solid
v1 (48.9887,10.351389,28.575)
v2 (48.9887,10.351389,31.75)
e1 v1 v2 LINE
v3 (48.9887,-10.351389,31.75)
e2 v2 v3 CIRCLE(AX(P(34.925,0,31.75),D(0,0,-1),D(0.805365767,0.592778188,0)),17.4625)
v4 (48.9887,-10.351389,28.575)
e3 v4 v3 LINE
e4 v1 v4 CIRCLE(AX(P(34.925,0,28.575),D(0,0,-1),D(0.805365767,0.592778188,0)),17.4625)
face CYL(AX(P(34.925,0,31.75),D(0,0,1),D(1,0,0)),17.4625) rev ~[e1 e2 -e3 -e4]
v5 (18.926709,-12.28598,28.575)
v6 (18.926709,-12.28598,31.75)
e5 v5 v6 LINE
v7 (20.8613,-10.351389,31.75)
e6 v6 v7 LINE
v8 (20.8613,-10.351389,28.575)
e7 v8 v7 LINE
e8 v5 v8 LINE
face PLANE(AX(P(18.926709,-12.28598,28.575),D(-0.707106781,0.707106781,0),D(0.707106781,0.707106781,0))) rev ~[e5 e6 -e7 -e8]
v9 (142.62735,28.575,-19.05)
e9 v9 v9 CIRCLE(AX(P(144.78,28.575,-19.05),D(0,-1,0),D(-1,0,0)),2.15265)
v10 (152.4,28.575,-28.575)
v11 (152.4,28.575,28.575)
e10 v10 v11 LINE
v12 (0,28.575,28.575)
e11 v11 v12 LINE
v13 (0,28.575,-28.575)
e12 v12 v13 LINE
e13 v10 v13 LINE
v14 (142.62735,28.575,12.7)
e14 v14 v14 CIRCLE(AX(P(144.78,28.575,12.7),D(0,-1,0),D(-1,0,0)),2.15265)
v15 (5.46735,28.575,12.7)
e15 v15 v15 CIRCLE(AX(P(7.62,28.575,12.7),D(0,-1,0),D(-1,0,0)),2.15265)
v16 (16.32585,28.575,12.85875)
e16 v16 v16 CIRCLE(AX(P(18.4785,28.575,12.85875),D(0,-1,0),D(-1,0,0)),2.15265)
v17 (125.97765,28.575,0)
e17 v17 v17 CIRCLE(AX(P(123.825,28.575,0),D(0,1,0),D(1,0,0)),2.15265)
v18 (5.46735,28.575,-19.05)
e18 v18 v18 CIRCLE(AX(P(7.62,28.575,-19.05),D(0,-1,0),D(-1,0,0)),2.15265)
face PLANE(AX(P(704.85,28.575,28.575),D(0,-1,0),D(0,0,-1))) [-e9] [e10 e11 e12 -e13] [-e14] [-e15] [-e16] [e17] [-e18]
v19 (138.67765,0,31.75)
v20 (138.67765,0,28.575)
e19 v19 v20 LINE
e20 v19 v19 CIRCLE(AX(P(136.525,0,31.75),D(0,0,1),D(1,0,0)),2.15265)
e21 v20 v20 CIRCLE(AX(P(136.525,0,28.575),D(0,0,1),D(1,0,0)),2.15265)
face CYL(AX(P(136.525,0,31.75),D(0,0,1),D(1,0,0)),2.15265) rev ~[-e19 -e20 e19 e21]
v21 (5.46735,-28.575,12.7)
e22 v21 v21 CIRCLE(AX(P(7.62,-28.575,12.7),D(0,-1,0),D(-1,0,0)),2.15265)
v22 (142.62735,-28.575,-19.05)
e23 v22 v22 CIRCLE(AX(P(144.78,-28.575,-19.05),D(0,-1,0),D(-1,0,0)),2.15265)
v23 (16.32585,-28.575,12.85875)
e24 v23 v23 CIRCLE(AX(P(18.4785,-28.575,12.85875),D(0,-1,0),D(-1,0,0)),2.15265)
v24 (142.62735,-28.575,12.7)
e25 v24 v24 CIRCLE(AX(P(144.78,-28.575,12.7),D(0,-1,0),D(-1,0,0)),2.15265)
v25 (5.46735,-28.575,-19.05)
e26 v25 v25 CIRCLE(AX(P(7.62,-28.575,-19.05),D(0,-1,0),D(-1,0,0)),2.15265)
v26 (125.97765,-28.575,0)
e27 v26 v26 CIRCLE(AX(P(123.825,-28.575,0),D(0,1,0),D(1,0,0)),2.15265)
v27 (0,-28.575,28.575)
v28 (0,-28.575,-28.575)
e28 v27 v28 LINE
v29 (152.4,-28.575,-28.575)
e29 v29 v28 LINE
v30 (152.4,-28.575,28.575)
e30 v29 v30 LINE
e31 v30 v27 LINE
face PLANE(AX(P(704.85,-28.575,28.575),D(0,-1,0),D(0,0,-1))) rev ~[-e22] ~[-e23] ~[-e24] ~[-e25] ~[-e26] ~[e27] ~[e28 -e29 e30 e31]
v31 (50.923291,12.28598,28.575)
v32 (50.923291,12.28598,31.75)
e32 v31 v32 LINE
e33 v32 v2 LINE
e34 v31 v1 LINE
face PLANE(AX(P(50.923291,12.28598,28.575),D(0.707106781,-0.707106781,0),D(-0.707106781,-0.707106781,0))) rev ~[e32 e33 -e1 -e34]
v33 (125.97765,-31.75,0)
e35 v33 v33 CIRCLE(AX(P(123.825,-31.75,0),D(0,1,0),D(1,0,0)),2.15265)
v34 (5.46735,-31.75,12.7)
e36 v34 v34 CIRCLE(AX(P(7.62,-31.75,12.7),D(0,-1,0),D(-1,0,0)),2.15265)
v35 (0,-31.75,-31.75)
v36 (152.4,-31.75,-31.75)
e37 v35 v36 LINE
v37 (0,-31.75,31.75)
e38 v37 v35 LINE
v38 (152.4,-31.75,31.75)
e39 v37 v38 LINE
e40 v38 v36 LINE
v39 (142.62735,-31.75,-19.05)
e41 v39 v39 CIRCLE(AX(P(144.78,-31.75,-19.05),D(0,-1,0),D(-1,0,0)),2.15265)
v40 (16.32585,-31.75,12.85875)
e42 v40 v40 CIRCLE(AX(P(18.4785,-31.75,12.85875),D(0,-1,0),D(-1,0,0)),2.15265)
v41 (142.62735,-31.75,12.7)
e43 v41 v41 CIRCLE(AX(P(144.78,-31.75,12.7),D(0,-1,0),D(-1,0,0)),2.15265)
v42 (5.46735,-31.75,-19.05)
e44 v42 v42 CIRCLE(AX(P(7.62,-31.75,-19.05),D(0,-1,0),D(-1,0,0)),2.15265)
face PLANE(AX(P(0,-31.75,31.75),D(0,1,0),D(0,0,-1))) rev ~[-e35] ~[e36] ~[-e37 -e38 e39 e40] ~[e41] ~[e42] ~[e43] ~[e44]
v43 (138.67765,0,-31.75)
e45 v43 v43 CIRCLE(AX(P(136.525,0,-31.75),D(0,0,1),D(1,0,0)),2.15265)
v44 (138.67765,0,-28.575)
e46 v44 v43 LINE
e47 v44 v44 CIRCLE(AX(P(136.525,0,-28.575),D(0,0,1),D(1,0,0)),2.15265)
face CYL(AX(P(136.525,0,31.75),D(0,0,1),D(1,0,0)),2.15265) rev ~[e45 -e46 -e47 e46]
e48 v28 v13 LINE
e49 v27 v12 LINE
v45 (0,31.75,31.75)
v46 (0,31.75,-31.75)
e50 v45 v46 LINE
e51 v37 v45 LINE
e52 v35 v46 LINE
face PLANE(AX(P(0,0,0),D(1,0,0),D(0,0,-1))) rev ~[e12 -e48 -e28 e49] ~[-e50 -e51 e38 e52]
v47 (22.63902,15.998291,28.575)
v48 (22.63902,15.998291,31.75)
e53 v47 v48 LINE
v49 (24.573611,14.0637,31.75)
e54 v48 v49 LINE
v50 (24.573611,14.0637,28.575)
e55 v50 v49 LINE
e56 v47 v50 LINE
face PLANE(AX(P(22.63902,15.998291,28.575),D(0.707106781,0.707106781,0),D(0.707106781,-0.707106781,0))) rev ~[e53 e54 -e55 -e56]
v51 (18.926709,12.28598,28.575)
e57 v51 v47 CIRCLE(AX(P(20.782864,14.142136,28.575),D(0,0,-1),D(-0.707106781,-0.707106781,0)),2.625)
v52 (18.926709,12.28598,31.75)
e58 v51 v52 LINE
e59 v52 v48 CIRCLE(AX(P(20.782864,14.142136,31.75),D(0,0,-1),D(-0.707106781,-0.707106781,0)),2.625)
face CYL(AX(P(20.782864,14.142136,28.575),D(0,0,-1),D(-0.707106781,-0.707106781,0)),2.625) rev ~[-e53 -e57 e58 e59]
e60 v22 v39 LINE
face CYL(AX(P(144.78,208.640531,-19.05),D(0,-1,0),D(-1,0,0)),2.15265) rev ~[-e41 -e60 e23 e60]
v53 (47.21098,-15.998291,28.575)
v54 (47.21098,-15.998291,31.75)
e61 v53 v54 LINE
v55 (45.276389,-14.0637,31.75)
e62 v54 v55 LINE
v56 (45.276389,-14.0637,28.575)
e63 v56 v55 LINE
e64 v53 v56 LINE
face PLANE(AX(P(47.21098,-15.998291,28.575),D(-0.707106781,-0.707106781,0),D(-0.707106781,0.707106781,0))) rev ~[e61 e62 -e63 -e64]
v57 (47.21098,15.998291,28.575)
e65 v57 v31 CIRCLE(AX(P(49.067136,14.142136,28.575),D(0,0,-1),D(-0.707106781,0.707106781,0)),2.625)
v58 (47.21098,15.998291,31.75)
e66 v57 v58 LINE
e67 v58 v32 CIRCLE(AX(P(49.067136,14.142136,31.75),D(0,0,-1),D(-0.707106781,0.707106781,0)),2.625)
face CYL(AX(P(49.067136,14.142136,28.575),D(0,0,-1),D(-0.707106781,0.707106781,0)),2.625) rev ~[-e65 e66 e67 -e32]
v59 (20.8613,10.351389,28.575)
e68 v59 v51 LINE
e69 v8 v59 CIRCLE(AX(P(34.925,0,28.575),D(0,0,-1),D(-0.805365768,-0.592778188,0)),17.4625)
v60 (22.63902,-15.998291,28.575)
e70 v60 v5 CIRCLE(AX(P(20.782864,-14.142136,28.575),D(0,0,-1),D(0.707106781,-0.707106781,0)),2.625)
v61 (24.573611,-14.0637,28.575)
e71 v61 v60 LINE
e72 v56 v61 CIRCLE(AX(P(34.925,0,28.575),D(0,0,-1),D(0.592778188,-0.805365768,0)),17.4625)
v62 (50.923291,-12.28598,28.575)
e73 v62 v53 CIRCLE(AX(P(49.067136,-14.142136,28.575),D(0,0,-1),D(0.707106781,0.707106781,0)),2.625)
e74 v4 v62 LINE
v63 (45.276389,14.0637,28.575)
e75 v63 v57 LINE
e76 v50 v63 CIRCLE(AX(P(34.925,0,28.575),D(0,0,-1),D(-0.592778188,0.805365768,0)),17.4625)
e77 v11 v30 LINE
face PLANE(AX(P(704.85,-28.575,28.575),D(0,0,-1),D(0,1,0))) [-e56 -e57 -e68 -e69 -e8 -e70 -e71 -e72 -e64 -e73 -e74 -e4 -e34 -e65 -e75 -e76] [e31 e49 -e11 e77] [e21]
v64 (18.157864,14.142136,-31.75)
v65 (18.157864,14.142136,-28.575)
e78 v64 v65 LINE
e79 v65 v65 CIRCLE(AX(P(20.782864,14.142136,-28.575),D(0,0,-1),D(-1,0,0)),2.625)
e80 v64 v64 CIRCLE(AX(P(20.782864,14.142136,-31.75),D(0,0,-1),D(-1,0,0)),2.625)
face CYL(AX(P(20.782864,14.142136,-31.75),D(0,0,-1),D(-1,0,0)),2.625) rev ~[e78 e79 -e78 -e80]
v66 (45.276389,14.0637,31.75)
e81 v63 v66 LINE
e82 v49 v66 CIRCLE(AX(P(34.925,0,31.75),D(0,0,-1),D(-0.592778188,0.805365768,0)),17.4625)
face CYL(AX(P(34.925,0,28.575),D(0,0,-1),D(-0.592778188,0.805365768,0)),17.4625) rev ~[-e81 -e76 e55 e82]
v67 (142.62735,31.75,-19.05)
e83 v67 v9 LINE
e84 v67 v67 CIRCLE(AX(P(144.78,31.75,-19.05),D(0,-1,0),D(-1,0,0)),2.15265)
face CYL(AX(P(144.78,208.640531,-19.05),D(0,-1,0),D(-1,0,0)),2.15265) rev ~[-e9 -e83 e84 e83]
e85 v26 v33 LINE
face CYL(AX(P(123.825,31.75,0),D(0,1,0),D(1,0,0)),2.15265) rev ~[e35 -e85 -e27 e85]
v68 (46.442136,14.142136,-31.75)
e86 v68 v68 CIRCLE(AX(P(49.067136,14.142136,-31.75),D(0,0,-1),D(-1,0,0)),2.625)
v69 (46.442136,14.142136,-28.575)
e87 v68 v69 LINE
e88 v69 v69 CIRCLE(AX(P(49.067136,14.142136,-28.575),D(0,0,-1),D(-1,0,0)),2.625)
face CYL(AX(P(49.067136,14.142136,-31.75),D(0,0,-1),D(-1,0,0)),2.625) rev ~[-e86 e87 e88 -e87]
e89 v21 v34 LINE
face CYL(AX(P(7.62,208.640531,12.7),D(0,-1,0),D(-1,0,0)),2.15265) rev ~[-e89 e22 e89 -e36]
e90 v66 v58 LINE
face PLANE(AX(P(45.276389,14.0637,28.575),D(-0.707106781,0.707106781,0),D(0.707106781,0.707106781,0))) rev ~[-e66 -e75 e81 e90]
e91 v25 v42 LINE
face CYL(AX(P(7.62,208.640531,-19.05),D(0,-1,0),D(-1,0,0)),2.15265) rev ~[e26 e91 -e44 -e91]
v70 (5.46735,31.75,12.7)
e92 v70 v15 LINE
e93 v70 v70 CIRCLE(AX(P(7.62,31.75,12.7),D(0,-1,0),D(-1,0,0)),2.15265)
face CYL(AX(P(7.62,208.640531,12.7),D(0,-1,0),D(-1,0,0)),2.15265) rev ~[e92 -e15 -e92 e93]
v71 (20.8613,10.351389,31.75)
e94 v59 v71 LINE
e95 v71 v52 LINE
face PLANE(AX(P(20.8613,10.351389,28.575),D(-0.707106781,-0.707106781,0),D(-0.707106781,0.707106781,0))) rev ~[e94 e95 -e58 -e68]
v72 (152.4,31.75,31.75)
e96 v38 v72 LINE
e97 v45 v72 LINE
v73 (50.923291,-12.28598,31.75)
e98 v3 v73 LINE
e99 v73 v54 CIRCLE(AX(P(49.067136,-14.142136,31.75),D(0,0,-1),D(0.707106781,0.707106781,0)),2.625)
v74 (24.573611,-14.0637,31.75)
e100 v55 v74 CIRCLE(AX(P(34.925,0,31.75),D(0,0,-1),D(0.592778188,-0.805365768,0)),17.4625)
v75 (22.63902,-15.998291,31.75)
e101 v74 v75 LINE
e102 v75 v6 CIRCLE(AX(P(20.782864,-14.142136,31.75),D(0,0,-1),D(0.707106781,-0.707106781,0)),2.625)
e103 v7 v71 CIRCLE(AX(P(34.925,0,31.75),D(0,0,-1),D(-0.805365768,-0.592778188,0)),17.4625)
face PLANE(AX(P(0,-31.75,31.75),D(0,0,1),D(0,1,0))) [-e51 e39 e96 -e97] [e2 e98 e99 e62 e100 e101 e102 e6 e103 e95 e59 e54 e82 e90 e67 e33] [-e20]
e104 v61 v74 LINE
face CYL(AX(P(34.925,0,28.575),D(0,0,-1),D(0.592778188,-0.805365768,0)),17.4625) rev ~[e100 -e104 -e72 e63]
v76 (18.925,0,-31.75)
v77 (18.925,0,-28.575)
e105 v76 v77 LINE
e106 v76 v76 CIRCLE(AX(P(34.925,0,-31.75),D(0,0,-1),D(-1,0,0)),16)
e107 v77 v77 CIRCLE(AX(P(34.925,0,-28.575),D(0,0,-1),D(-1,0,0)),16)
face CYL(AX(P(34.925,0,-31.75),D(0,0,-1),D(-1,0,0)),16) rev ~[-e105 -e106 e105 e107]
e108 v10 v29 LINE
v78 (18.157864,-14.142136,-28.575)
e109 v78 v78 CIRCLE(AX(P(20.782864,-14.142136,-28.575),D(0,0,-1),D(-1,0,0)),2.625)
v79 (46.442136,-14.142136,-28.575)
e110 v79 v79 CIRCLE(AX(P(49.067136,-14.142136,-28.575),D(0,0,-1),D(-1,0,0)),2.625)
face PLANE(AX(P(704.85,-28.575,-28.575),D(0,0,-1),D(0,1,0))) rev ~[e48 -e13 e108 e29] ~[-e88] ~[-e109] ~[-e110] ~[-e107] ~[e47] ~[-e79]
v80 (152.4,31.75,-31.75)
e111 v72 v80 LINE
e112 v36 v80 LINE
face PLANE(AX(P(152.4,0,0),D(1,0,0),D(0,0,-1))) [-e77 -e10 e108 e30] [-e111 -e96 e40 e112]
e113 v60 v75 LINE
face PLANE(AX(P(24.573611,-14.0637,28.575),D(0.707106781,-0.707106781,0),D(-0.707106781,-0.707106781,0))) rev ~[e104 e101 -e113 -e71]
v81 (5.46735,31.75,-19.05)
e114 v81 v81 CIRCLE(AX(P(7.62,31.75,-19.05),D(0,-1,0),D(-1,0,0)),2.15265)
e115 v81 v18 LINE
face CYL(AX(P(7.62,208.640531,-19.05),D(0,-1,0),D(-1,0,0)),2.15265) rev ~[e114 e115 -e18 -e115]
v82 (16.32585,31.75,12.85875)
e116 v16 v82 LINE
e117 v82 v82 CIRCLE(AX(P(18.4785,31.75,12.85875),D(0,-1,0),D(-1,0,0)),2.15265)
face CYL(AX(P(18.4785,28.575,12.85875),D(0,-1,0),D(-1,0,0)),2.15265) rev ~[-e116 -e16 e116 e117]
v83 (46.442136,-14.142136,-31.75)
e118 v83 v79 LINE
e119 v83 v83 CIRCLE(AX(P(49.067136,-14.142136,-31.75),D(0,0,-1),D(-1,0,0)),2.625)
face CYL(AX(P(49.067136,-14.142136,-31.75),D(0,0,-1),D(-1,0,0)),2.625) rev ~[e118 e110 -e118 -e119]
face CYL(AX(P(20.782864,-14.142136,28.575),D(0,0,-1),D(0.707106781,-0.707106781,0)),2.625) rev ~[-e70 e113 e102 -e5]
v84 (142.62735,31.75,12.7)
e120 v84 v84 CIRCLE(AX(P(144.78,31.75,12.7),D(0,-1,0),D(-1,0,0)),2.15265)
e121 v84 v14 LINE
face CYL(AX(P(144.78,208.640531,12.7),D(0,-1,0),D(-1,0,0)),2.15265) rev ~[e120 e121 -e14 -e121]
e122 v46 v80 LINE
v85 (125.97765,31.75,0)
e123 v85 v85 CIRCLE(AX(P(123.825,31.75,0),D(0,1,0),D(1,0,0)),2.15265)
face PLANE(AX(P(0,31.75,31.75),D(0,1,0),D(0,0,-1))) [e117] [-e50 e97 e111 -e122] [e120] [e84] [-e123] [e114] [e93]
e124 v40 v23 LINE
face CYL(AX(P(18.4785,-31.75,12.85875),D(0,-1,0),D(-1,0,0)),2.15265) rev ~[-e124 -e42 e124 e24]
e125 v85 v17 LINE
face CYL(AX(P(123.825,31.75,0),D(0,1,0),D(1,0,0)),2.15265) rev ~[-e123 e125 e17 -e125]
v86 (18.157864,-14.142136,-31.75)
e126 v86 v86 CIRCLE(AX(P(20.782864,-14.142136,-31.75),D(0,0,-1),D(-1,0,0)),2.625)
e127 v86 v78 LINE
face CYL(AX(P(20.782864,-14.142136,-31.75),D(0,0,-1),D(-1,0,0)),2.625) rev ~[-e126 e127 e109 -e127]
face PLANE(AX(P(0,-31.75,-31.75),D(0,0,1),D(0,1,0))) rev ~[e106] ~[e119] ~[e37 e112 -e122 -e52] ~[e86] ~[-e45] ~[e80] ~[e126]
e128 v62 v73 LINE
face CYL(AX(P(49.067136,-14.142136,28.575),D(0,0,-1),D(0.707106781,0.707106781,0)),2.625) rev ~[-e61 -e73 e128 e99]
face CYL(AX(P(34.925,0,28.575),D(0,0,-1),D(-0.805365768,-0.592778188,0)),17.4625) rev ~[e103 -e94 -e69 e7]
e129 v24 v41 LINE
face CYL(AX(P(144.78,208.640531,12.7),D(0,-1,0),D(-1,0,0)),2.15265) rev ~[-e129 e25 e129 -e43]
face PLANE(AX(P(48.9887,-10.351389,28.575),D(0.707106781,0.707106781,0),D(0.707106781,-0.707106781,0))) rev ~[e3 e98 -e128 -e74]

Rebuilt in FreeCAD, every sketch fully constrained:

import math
import FreeCAD as App
import Part
import Sketcher

V = App.Vector
Q = App.Units.Quantity


def add_polygon(sketch, points):
    """Adds a closed chain of lines whose ends are joined by coincident constraints."""
    first, n = sketch.GeometryCount, len(points)
    for a, b in zip(points, points[1:] + points[:1]):
        sketch.addGeometry(Part.LineSegment(App.Vector(*a, 0), App.Vector(*b, 0)), False)
    for i in range(n):
        sketch.addConstraint(Sketcher.Constraint("Coincident", first + i, 2, first + (i + 1) % n, 1))

doc = App.newDocument("Part")
body = doc.addObject("PartDesign::Body", "Body")

# Sketch on YZ plane
sketch1 = body.newObject("Sketcher::SketchObject", "Sketch")
sketch1.AttachmentSupport = (doc.getObject("YZ_Plane"), [""])
sketch1.MapMode = "FlatFace"
add_polygon(sketch1, [(32, 32), (-32, 32), (-32, -32), (32, -32)])  # lines 0-3
sketch1.addConstraint([
    Sketcher.Constraint("Horizontal", 0),
    Sketcher.Constraint("Vertical", 1),
    Sketcher.Constraint("Horizontal", 2),
    Sketcher.Constraint("Vertical", 3),
    Sketcher.Constraint("Symmetric", 0, 2, 2, 2, -1, 1),
    Sketcher.Constraint("Equal", 2, 1),
    Sketcher.Constraint("DistanceX", 0, 2, 0, 1, Q("2.5 in")),
])
pad1 = body.newObject("PartDesign::Pad", "Pad")
pad1.Profile = sketch1
pad1.Length = Q("27.75 in")

# Sketch on YZ plane
sketch2 = body.newObject("Sketcher::SketchObject", "Sketch001")
sketch2.AttachmentSupport = (doc.getObject("YZ_Plane"), [""])
sketch2.MapMode = "FlatFace"
sketch2.AttachmentOffset = App.Placement(V(0, 0, 27.75 * 25.4), App.Rotation())
add_polygon(sketch2, [(29, 29), (-29, 29), (-29, -29), (29, -29)])  # lines 0-3
sketch2.addConstraint([
    Sketcher.Constraint("Horizontal", 0),
    Sketcher.Constraint("Vertical", 1),
    Sketcher.Constraint("Horizontal", 2),
    Sketcher.Constraint("Vertical", 3),
    Sketcher.Constraint("Symmetric", 0, 2, 2, 2, -1, 1),
    Sketcher.Constraint("Equal", 2, 1),
    Sketcher.Constraint("DistanceX", 0, 2, 0, 1, Q("2.25 in")),
])
pocket1 = body.newObject("PartDesign::Pocket", "Pocket")
pocket1.Profile = sketch2
pocket1.Type = "ThroughAll"

# Sketch on XY plane
sketch3 = body.newObject("Sketcher::SketchObject", "Sketch002")
sketch3.AttachmentSupport = (doc.getObject("XY_Plane"), [""])
sketch3.MapMode = "FlatFace"
sketch3.AttachmentOffset = App.Placement(V(0, 0, 1.25 * 25.4), App.Rotation())
sketch3.addGeometry(Part.Circle(V(352, 0, 0), V(0, 0, 1), 17), False)
sketch3.addConstraint([
    Sketcher.Constraint("PointOnObject", 0, 3, -1),
    Sketcher.Constraint("Diameter", 0, Q("1.375 in")),
    Sketcher.Constraint("DistanceX", -1, 1, 0, 3, Q("13.875 in")),
])
pocket2 = body.newObject("PartDesign::Pocket", "Pocket001")
pocket2.Profile = sketch3
pocket2.Type = "UpToFirst"

# Sketch on XY plane
sketch4 = body.newObject("Sketcher::SketchObject", "Sketch003")
sketch4.AttachmentSupport = (doc.getObject("XY_Plane"), [""])
sketch4.MapMode = "FlatFace"
sketch4.AttachmentOffset = App.Placement(V(0, 0, 1.25 * 25.4), App.Rotation())
sketch4.addGeometry(Part.Circle(V(35, 0, 0), V(0, 0, 1), 17), False)
sketch4.addConstraint([
    Sketcher.Constraint("PointOnObject", 0, 3, -1),
    Sketcher.Constraint("Diameter", 0, Q("1.375 in")),
    Sketcher.Constraint("DistanceX", -1, 1, 0, 3, Q("1.375 in")),
])
pocket3 = body.newObject("PartDesign::Pocket", "Pocket002")
pocket3.Profile = sketch4
pocket3.Type = "UpToFirst"

# Sketch on XY plane
sketch5 = body.newObject("Sketcher::SketchObject", "Sketch004")
sketch5.AttachmentSupport = (doc.getObject("XY_Plane"), [""])
sketch5.MapMode = "FlatFace"
sketch5.AttachmentOffset = App.Placement(V(0, 0, 1.25 * 25.4), App.Rotation())
sketch5.addGeometry(Part.Circle(V(670, 0, 0), V(0, 0, 1), 17), False)
sketch5.addConstraint([
    Sketcher.Constraint("PointOnObject", 0, 3, -1),
    Sketcher.Constraint("Diameter", 0, Q("1.375 in")),
    Sketcher.Constraint("DistanceX", -1, 1, 0, 3, Q("26.375 in")),
])
pocket4 = body.newObject("PartDesign::Pocket", "Pocket003")
pocket4.Profile = sketch5
pocket4.Type = "UpToFirst"

# Sketch on XZ plane
sketch6 = body.newObject("Sketcher::SketchObject", "Sketch005")
sketch6.AttachmentSupport = (doc.getObject("XZ_Plane"), [""])
sketch6.MapMode = "FlatFace"
sketch6.AttachmentOffset = App.Placement(V(0, 0, -1.25 * 25.4), App.Rotation())
sketch6.addGeometry([
    Part.Circle(V(466.7, 0, 0), V(0, 0, 1), 2.2),
    Part.Circle(V(123.8, 0, 0), V(0, 0, 1), 2.2),
    Part.Circle(V(581, 0, 0), V(0, 0, 1), 2.2),
    Part.Circle(V(238.1, 0, 0), V(0, 0, 1), 2.2),
], False)
sketch6.addConstraint([
    Sketcher.Constraint("Equal", 0, 1),
    Sketcher.Constraint("Equal", 1, 2),
    Sketcher.Constraint("Equal", 2, 3),
    Sketcher.Constraint("PointOnObject", 0, 3, -1),
    Sketcher.Constraint("PointOnObject", 1, 3, -1),
    Sketcher.Constraint("PointOnObject", 2, 3, -1),
    Sketcher.Constraint("PointOnObject", 3, 3, -1),
    Sketcher.Constraint("DistanceX", 1, 3, 2, 3, Q("18 in")),
    Sketcher.Constraint("DistanceX", 3, 3, 0, 3, Q("9 in")),
    Sketcher.Constraint("Diameter", 0, Q("0.1695 in")),
    Sketcher.Constraint("DistanceX", 1, 3, 0, 3, Q("13.5 in")),
    Sketcher.Constraint("DistanceX", -1, 1, 0, 3, Q("18.375 in")),
])
pocket5 = body.newObject("PartDesign::Pocket", "Pocket004")
pocket5.Profile = sketch6
pocket5.Type = "ThroughAll"
pocket5.Reversed = True

# Sketch on XY plane
sketch7 = body.newObject("Sketcher::SketchObject", "Sketch006")
sketch7.AttachmentSupport = (doc.getObject("XY_Plane"), [""])
sketch7.MapMode = "FlatFace"
sketch7.AttachmentOffset = App.Placement(V(0, 0, 1.25 * 25.4), App.Rotation())
sketch7.addGeometry([
    Part.Circle(V(225.4, 0, 0), V(0, 0, 1), 2.2),
    Part.Circle(V(568.3, 0, 0), V(0, 0, 1), 2.2),
    Part.Circle(V(136.5, 0, 0), V(0, 0, 1), 2.2),
    Part.Circle(V(479.4, 0, 0), V(0, 0, 1), 2.2),
], False)
sketch7.addConstraint([
    Sketcher.Constraint("Equal", 0, 1),
    Sketcher.Constraint("Equal", 1, 2),
    Sketcher.Constraint("Equal", 2, 3),
    Sketcher.Constraint("PointOnObject", 0, 3, -1),
    Sketcher.Constraint("PointOnObject", 1, 3, -1),
    Sketcher.Constraint("PointOnObject", 2, 3, -1),
    Sketcher.Constraint("PointOnObject", 3, 3, -1),
    Sketcher.Constraint("DistanceX", 2, 3, 1, 3, Q("17 in")),
    Sketcher.Constraint("DistanceX", 0, 3, 3, 3, Q("10 in")),
    Sketcher.Constraint("Diameter", 0, Q("0.1695 in")),
    Sketcher.Constraint("DistanceX", 0, 3, 1, 3, Q("13.5 in")),
    Sketcher.Constraint("DistanceX", -1, 1, 0, 3, Q("8.875 in")),
])
pocket6 = body.newObject("PartDesign::Pocket", "Pocket005")
pocket6.Profile = sketch7
pocket6.Type = "ThroughAll"

# Sketch on XY plane
sketch8 = body.newObject("Sketcher::SketchObject", "Sketch007")
sketch8.AttachmentSupport = (doc.getObject("XY_Plane"), [""])
sketch8.MapMode = "FlatFace"
sketch8.AttachmentOffset = App.Placement(V(0, 0, -1.25 * 25.4), App.Rotation())
sketch8.addGeometry(Part.Circle(V(352, 0, 0), V(0, 0, 1), 16), False)
sketch8.addConstraint([
    Sketcher.Constraint("PointOnObject", 0, 3, -1),
    Sketcher.Constraint("Diameter", 0, 32.0),
    Sketcher.Constraint("DistanceX", -1, 1, 0, 3, Q("13.875 in")),
])
pocket7 = body.newObject("PartDesign::Pocket", "Pocket006")
pocket7.Profile = sketch8
pocket7.Type = "UpToFirst"
pocket7.Reversed = True

# Sketch on XY plane
sketch9 = body.newObject("Sketcher::SketchObject", "Sketch008")
sketch9.AttachmentSupport = (doc.getObject("XY_Plane"), [""])
sketch9.MapMode = "FlatFace"
sketch9.AttachmentOffset = App.Placement(V(0, 0, -1.25 * 25.4), App.Rotation())
sketch9.addGeometry(Part.Circle(V(35, 0, 0), V(0, 0, 1), 16), False)
sketch9.addConstraint([
    Sketcher.Constraint("PointOnObject", 0, 3, -1),
    Sketcher.Constraint("Diameter", 0, 32.0),
    Sketcher.Constraint("DistanceX", -1, 1, 0, 3, Q("1.375 in")),
])
pocket8 = body.newObject("PartDesign::Pocket", "Pocket007")
pocket8.Profile = sketch9
pocket8.Type = "UpToFirst"
pocket8.Reversed = True

# Sketch on XY plane
sketch10 = body.newObject("Sketcher::SketchObject", "Sketch009")
sketch10.AttachmentSupport = (doc.getObject("XY_Plane"), [""])
sketch10.MapMode = "FlatFace"
sketch10.AttachmentOffset = App.Placement(V(0, 0, -1.25 * 25.4), App.Rotation())
sketch10.addGeometry(Part.Circle(V(670, 0, 0), V(0, 0, 1), 16), False)
sketch10.addConstraint([
    Sketcher.Constraint("PointOnObject", 0, 3, -1),
    Sketcher.Constraint("Diameter", 0, 32.0),
    Sketcher.Constraint("DistanceX", -1, 1, 0, 3, Q("26.375 in")),
])
pocket9 = body.newObject("PartDesign::Pocket", "Pocket008")
pocket9.Profile = sketch10
pocket9.Type = "UpToFirst"
pocket9.Reversed = True

# Sketch on XY plane
sketch11 = body.newObject("Sketcher::SketchObject", "Sketch010")
sketch11.AttachmentSupport = (doc.getObject("XY_Plane"), [""])
sketch11.MapMode = "FlatFace"
sketch11.AttachmentOffset = App.Placement(V(0, 0, -1.25 * 25.4), App.Rotation())
sketch11.addGeometry([
    Part.Circle(V(655.8, 14.1, 0), V(0, 0, 1), 2.6),  # 0
    Part.Circle(V(338.3, 14.1, 0), V(0, 0, 1), 2.6),  # 1
    Part.Circle(V(20.8, 14.1, 0), V(0, 0, 1), 2.6),  # 2
    Part.Circle(V(352.4, 0, 0), V(0, 0, 1), 16),  # 3
    Part.Circle(V(34.9, 0, 0), V(0, 0, 1), 16),  # 4
    Part.Circle(V(669.9, 0, 0), V(0, 0, 1), 16),  # 5
    Part.Circle(V(338.3, -14.1, 0), V(0, 0, 1), 2.6),  # 6
    Part.Circle(V(366.6, -14.1, 0), V(0, 0, 1), 2.6),  # 7
    Part.Circle(V(366.6, 14.1, 0), V(0, 0, 1), 2.6),  # 8
    Part.Circle(V(20.8, -14.1, 0), V(0, 0, 1), 2.6),  # 9
    Part.Circle(V(49.1, -14.1, 0), V(0, 0, 1), 2.6),  # 10
    Part.Circle(V(49.1, 14.1, 0), V(0, 0, 1), 2.6),  # 11
    Part.Circle(V(655.8, -14.1, 0), V(0, 0, 1), 2.6),  # 12
    Part.Circle(V(684.1, -14.1, 0), V(0, 0, 1), 2.6),  # 13
    Part.Circle(V(684.1, 14.1, 0), V(0, 0, 1), 2.6),  # 14
], False)
sketch11.addConstraint([
    Sketcher.Constraint("Equal", 0, 1),
    Sketcher.Constraint("Equal", 1, 2),
    Sketcher.Constraint("Equal", 3, 4),
    Sketcher.Constraint("Equal", 4, 5),
    Sketcher.Constraint("Equal", 2, 6),
    Sketcher.Constraint("Equal", 6, 7),
    Sketcher.Constraint("Equal", 7, 8),
    Sketcher.Constraint("Equal", 8, 9),
    Sketcher.Constraint("Equal", 9, 10),
    Sketcher.Constraint("Equal", 10, 11),
    Sketcher.Constraint("Equal", 11, 12),
    Sketcher.Constraint("Equal", 12, 13),
    Sketcher.Constraint("Equal", 13, 14),
    Sketcher.Constraint("Symmetric", 1, 3, 6, 3, -1),
    Sketcher.Constraint("Symmetric", 7, 3, 8, 3, -1),
    Sketcher.Constraint("Symmetric", 2, 3, 9, 3, -1),
    Sketcher.Constraint("Symmetric", 10, 3, 11, 3, -1),
    Sketcher.Constraint("Symmetric", 0, 3, 12, 3, -1),
    Sketcher.Constraint("Symmetric", 13, 3, 14, 3, -1),
    Sketcher.Constraint("PointOnObject", 3, 3, -1),
    Sketcher.Constraint("PointOnObject", 4, 3, -1),
    Sketcher.Constraint("PointOnObject", 5, 3, -1),
    Sketcher.Constraint("Horizontal", 0, 3, 1, 3),
    Sketcher.Constraint("Horizontal", 1, 3, 2, 3),
    Sketcher.Constraint("Horizontal", 6, 3, 7, 3),
    Sketcher.Constraint("Horizontal", 9, 3, 10, 3),
    Sketcher.Constraint("Horizontal", 12, 3, 13, 3),
    Sketcher.Constraint("DistanceX", 2, 3, 0, 3, Q("25 in")),
    Sketcher.Constraint("DistanceX", 4, 3, 5, 3, Q("25 in")),
    Sketcher.Constraint("DistanceX", 1, 3, 0, 3, Q("12.5 in")),
    Sketcher.Constraint("DistanceX", 4, 3, 3, 3, Q("12.5 in")),
    Sketcher.Constraint("DistanceX", 7, 3, 13, 3, Q("12.5 in")),
    Sketcher.Constraint("Diameter", 0, 5.25),
    Sketcher.Constraint("Diameter", 3, 32.0),
    Sketcher.Constraint("DistanceX", -1, 1, 3, 3, Q("13.875 in")),
    Sketcher.Constraint("DistanceY", 6, 3, 1, 3, 28.284271),
    Sketcher.Constraint("DistanceX", 6, 3, 7, 3, 28.284271),
    Sketcher.Constraint("DistanceX", 9, 3, 10, 3, 28.284271),
    Sketcher.Constraint("DistanceX", -1, 1, 0, 3, 655.782864),
])
pocket10 = body.newObject("PartDesign::Pocket", "Pocket009")
pocket10.Profile = sketch11
pocket10.Length = Q("0.125 in")
pocket10.Reversed = True

# Sketch on XY plane
sketch12 = body.newObject("Sketcher::SketchObject", "Sketch011")
sketch12.AttachmentSupport = (doc.getObject("XY_Plane"), [""])
sketch12.MapMode = "FlatFace"
sketch12.AttachmentOffset = App.Placement(V(0, 0, 1.125 * 25.4), App.Rotation())
sketch12.addGeometry([
    Part.LineSegment(V(362.8, -14.1, 0), V(364.7, -16, 0)),  # 0
    Part.ArcOfCircle(Part.Circle(V(366.6, -14.1, 0), V(0, 0, 1), 2.6), math.radians(-135), math.radians(45)),  # 1
    Part.LineSegment(V(368.4, -12.3, 0), V(366.5, -10.4, 0)),  # 2
    Part.ArcOfCircle(Part.Circle(V(352.4, 0, 0), V(0, 0, 1), 17.5), math.radians(-36), math.radians(36)),  # 3
    Part.LineSegment(V(366.5, 10.4, 0), V(368.4, 12.3, 0)),  # 4
    Part.ArcOfCircle(Part.Circle(V(366.6, 14.1, 0), V(0, 0, 1), 2.6), math.radians(-45), math.radians(135)),  # 5
    Part.LineSegment(V(364.7, 16, 0), V(362.8, 14.1, 0)),  # 6
    Part.ArcOfCircle(Part.Circle(V(352.4, 0, 0), V(0, 0, 1), 17.5), math.radians(54), math.radians(126)),  # 7
    Part.LineSegment(V(342.1, 14.1, 0), V(340.1, 16, 0)),  # 8
    Part.ArcOfCircle(Part.Circle(V(338.3, 14.1, 0), V(0, 0, 1), 2.6), math.radians(45), math.radians(225)),  # 9
    Part.LineSegment(V(336.4, 12.3, 0), V(338.4, 10.4, 0)),  # 10
    Part.ArcOfCircle(Part.Circle(V(352.4, 0, 0), V(0, 0, 1), 17.5), math.radians(144), math.radians(216)),  # 11
    Part.LineSegment(V(338.4, -10.4, 0), V(336.4, -12.3, 0)),  # 12
    Part.ArcOfCircle(Part.Circle(V(338.3, -14.1, 0), V(0, 0, 1), 2.6), math.radians(135), math.radians(315)),  # 13
    Part.LineSegment(V(340.1, -16, 0), V(342.1, -14.1, 0)),  # 14
    Part.ArcOfCircle(Part.Circle(V(352.4, 0, 0), V(0, 0, 1), 17.5), math.radians(-126), math.radians(-54)),  # 15
    Part.LineSegment(V(49, 10.4, 0), V(50.9, 12.3, 0)),  # 16
    Part.ArcOfCircle(Part.Circle(V(49.1, 14.1, 0), V(0, 0, 1), 2.6), math.radians(-45), math.radians(135)),  # 17
    Part.LineSegment(V(47.2, 16, 0), V(45.3, 14.1, 0)),  # 18
    Part.ArcOfCircle(Part.Circle(V(34.9, 0, 0), V(0, 0, 1), 17.5), math.radians(54), math.radians(126)),  # 19
    Part.LineSegment(V(24.6, 14.1, 0), V(22.6, 16, 0)),  # 20
    Part.ArcOfCircle(Part.Circle(V(20.8, 14.1, 0), V(0, 0, 1), 2.6), math.radians(45), math.radians(225)),  # 21
    Part.LineSegment(V(18.9, 12.3, 0), V(20.9, 10.4, 0)),  # 22
    Part.ArcOfCircle(Part.Circle(V(34.9, 0, 0), V(0, 0, 1), 17.5), math.radians(144), math.radians(216)),  # 23
    Part.LineSegment(V(20.9, -10.4, 0), V(18.9, -12.3, 0)),  # 24
    Part.ArcOfCircle(Part.Circle(V(20.8, -14.1, 0), V(0, 0, 1), 2.6), math.radians(135), math.radians(315)),  # 25
    Part.LineSegment(V(22.6, -16, 0), V(24.6, -14.1, 0)),  # 26
    Part.ArcOfCircle(Part.Circle(V(34.9, 0, 0), V(0, 0, 1), 17.5), math.radians(-126), math.radians(-54)),  # 27
    Part.LineSegment(V(45.3, -14.1, 0), V(47.2, -16, 0)),  # 28
    Part.ArcOfCircle(Part.Circle(V(49.1, -14.1, 0), V(0, 0, 1), 2.6), math.radians(-135), math.radians(45)),  # 29
    Part.LineSegment(V(50.9, -12.3, 0), V(49, -10.4, 0)),  # 30
    Part.ArcOfCircle(Part.Circle(V(34.9, 0, 0), V(0, 0, 1), 17.5), math.radians(-36), math.radians(36)),  # 31
    Part.LineSegment(V(684, 10.4, 0), V(685.9, 12.3, 0)),  # 32
    Part.ArcOfCircle(Part.Circle(V(684.1, 14.1, 0), V(0, 0, 1), 2.6), math.radians(-45), math.radians(135)),  # 33
    Part.LineSegment(V(682.2, 16, 0), V(680.3, 14.1, 0)),  # 34
    Part.ArcOfCircle(Part.Circle(V(669.9, 0, 0), V(0, 0, 1), 17.5), math.radians(54), math.radians(126)),  # 35
    Part.LineSegment(V(659.6, 14.1, 0), V(657.6, 16, 0)),  # 36
    Part.ArcOfCircle(Part.Circle(V(655.8, 14.1, 0), V(0, 0, 1), 2.6), math.radians(45), math.radians(225)),  # 37
    Part.LineSegment(V(653.9, 12.3, 0), V(655.9, 10.4, 0)),  # 38
    Part.ArcOfCircle(Part.Circle(V(669.9, 0, 0), V(0, 0, 1), 17.5), math.radians(144), math.radians(216)),  # 39
    Part.LineSegment(V(655.9, -10.4, 0), V(653.9, -12.3, 0)),  # 40
    Part.ArcOfCircle(Part.Circle(V(655.8, -14.1, 0), V(0, 0, 1), 2.6), math.radians(135), math.radians(315)),  # 41
    Part.LineSegment(V(657.6, -16, 0), V(659.6, -14.1, 0)),  # 42
    Part.ArcOfCircle(Part.Circle(V(669.9, 0, 0), V(0, 0, 1), 17.5), math.radians(-126), math.radians(-54)),  # 43
    Part.LineSegment(V(680.3, -14.1, 0), V(682.2, -16, 0)),  # 44
    Part.ArcOfCircle(Part.Circle(V(684.1, -14.1, 0), V(0, 0, 1), 2.6), math.radians(-135), math.radians(45)),  # 45
    Part.LineSegment(V(685.9, -12.3, 0), V(684, -10.4, 0)),  # 46
    Part.ArcOfCircle(Part.Circle(V(669.9, 0, 0), V(0, 0, 1), 17.5), math.radians(-36), math.radians(36)),  # 47
], False)
sketch12.addConstraint([
    Sketcher.Constraint("Tangent", 0, 2, 1, 1),
    Sketcher.Constraint("Tangent", 1, 2, 2, 1),
    Sketcher.Constraint("Coincident", 2, 2, 3, 1),
    Sketcher.Constraint("Coincident", 3, 2, 4, 1),
    Sketcher.Constraint("Tangent", 4, 2, 5, 1),
    Sketcher.Constraint("Tangent", 5, 2, 6, 1),
    Sketcher.Constraint("Coincident", 6, 2, 7, 1),
    Sketcher.Constraint("Coincident", 7, 2, 8, 1),
    Sketcher.Constraint("Tangent", 8, 2, 9, 1),
    Sketcher.Constraint("Tangent", 9, 2, 10, 1),
    Sketcher.Constraint("Coincident", 10, 2, 11, 1),
    Sketcher.Constraint("Coincident", 11, 2, 12, 1),
    Sketcher.Constraint("Tangent", 12, 2, 13, 1),
    Sketcher.Constraint("Tangent", 13, 2, 14, 1),
    Sketcher.Constraint("Coincident", 14, 2, 15, 1),
    Sketcher.Constraint("Coincident", 15, 2, 0, 1),
    Sketcher.Constraint("Tangent", 16, 2, 17, 1),
    Sketcher.Constraint("Tangent", 17, 2, 18, 1),
    Sketcher.Constraint("Coincident", 18, 2, 19, 1),
    Sketcher.Constraint("Coincident", 19, 2, 20, 1),
    Sketcher.Constraint("Tangent", 20, 2, 21, 1),
    Sketcher.Constraint("Tangent", 21, 2, 22, 1),
    Sketcher.Constraint("Coincident", 22, 2, 23, 1),
    Sketcher.Constraint("Coincident", 23, 2, 24, 1),
    Sketcher.Constraint("Tangent", 24, 2, 25, 1),
    Sketcher.Constraint("Tangent", 25, 2, 26, 1),
    Sketcher.Constraint("Coincident", 26, 2, 27, 1),
    Sketcher.Constraint("Coincident", 27, 2, 28, 1),
    Sketcher.Constraint("Tangent", 28, 2, 29, 1),
    Sketcher.Constraint("Tangent", 29, 2, 30, 1),
    Sketcher.Constraint("Coincident", 30, 2, 31, 1),
    Sketcher.Constraint("Coincident", 31, 2, 16, 1),
    Sketcher.Constraint("Tangent", 32, 2, 33, 1),
    Sketcher.Constraint("Tangent", 33, 2, 34, 1),
    Sketcher.Constraint("Coincident", 34, 2, 35, 1),
    Sketcher.Constraint("Coincident", 35, 2, 36, 1),
    Sketcher.Constraint("Tangent", 36, 2, 37, 1),
    Sketcher.Constraint("Tangent", 37, 2, 38, 1),
    Sketcher.Constraint("Coincident", 38, 2, 39, 1),
    Sketcher.Constraint("Coincident", 39, 2, 40, 1),
    Sketcher.Constraint("Tangent", 40, 2, 41, 1),
    Sketcher.Constraint("Tangent", 41, 2, 42, 1),
    Sketcher.Constraint("Coincident", 42, 2, 43, 1),
    Sketcher.Constraint("Coincident", 43, 2, 44, 1),
    Sketcher.Constraint("Tangent", 44, 2, 45, 1),
    Sketcher.Constraint("Tangent", 45, 2, 46, 1),
    Sketcher.Constraint("Coincident", 46, 2, 47, 1),
    Sketcher.Constraint("Coincident", 47, 2, 32, 1),
    Sketcher.Constraint("Coincident", 7, 3, 3, 3),
    Sketcher.Constraint("Coincident", 11, 3, 3, 3),
    Sketcher.Constraint("Coincident", 15, 3, 3, 3),
    Sketcher.Constraint("Coincident", 23, 3, 19, 3),
    Sketcher.Constraint("Coincident", 27, 3, 19, 3),
    Sketcher.Constraint("Coincident", 31, 3, 19, 3),
    Sketcher.Constraint("Coincident", 39, 3, 35, 3),
    Sketcher.Constraint("Coincident", 43, 3, 35, 3),
    Sketcher.Constraint("Coincident", 47, 3, 35, 3),
    Sketcher.Constraint("Equal", 1, 5),
    Sketcher.Constraint("Equal", 3, 7),
    Sketcher.Constraint("Equal", 5, 9),
    Sketcher.Constraint("Equal", 7, 11),
    Sketcher.Constraint("Equal", 9, 13),
    Sketcher.Constraint("Equal", 11, 15),
    Sketcher.Constraint("Equal", 13, 17),
    Sketcher.Constraint("Equal", 15, 19),
    Sketcher.Constraint("Equal", 17, 21),
    Sketcher.Constraint("Equal", 19, 23),
    Sketcher.Constraint("Equal", 21, 25),
    Sketcher.Constraint("Equal", 23, 27),
    Sketcher.Constraint("Equal", 25, 29),
    Sketcher.Constraint("Equal", 27, 31),
    Sketcher.Constraint("Equal", 29, 33),
    Sketcher.Constraint("Equal", 31, 35),
    Sketcher.Constraint("Equal", 33, 37),
    Sketcher.Constraint("Equal", 35, 39),
    Sketcher.Constraint("Equal", 37, 41),
    Sketcher.Constraint("Equal", 39, 43),
    Sketcher.Constraint("Equal", 41, 45),
    Sketcher.Constraint("Equal", 43, 47),
    Sketcher.Constraint("Symmetric", 1, 3, 5, 3, -1),
    Sketcher.Constraint("Symmetric", 9, 3, 13, 3, -1),
    Sketcher.Constraint("Symmetric", 21, 3, 25, 3, -1),
    Sketcher.Constraint("Symmetric", 17, 3, 29, 3, -1),
    Sketcher.Constraint("Symmetric", 37, 3, 41, 3, -1),
    Sketcher.Constraint("Symmetric", 33, 3, 45, 3, -1),
    Sketcher.Constraint("Symmetric", 2, 2, 3, 2, -1),
    Sketcher.Constraint("Symmetric", 22, 2, 23, 2, -1),
    Sketcher.Constraint("Symmetric", 38, 2, 39, 2, -1),
    Sketcher.Constraint("Parallel", 0, 2),
    Sketcher.Constraint("Perpendicular", 2, 4),
    Sketcher.Constraint("Parallel", 4, 6),
    Sketcher.Constraint("Perpendicular", 6, 8),
    Sketcher.Constraint("Parallel", 8, 10),
    Sketcher.Constraint("Perpendicular", 10, 12),
    Sketcher.Constraint("Parallel", 12, 14),
    Sketcher.Constraint("Parallel", 14, 16),
    Sketcher.Constraint("Parallel", 16, 18),
    Sketcher.Constraint("Perpendicular", 18, 20),
    Sketcher.Constraint("Parallel", 20, 22),
    Sketcher.Constraint("Parallel", 24, 26),
    Sketcher.Constraint("Perpendicular", 26, 28),
    Sketcher.Constraint("Parallel", 28, 30),
    Sketcher.Constraint("Perpendicular", 30, 32),
    Sketcher.Constraint("Parallel", 32, 34),
    Sketcher.Constraint("Perpendicular", 34, 36),
    Sketcher.Constraint("Parallel", 36, 38),
    Sketcher.Constraint("Parallel", 40, 42),
    Sketcher.Constraint("Perpendicular", 42, 44),
    Sketcher.Constraint("Parallel", 44, 46),
    Sketcher.Constraint("Horizontal", 5, 3, 9, 3),
    Sketcher.Constraint("Horizontal", 9, 3, 17, 3),
    Sketcher.Constraint("Horizontal", 17, 3, 21, 3),
    Sketcher.Constraint("Horizontal", 21, 3, 33, 3),
    Sketcher.Constraint("Horizontal", 33, 3, 37, 3),
    Sketcher.Constraint("Horizontal", 6, 2, 7, 2),
    Sketcher.Constraint("Horizontal", 7, 2, 18, 2),
    Sketcher.Constraint("Horizontal", 18, 2, 19, 2),
    Sketcher.Constraint("Horizontal", 19, 2, 34, 2),
    Sketcher.Constraint("Horizontal", 34, 2, 35, 2),
    Sketcher.Constraint("Equal", 0, 2),
    Sketcher.Constraint("Radius", 3, Q("0.6875 in")),
    Sketcher.Constraint("Radius", 1, 2.625),
    Sketcher.Constraint("DistanceX", -1, 1, 3, 3, Q("13.875 in")),
    Sketcher.Constraint("DistanceX", -1, 1, 19, 3, Q("1.375 in")),
    Sketcher.Constraint("DistanceX", -1, 1, 35, 3, Q("26.375 in")),
    Sketcher.Constraint("DistanceX", -1, 1, 0, 2, Q("14.3587 in")),
])
pocket11 = body.newObject("PartDesign::Pocket", "Pocket010")
pocket11.Profile = sketch12
pocket11.Length = Q("0.125 in")
pocket11.Reversed = True

# Sketch on XZ plane
sketch13 = body.newObject("Sketcher::SketchObject", "Sketch012")
sketch13.AttachmentSupport = (doc.getObject("XZ_Plane"), [""])
sketch13.MapMode = "FlatFace"
sketch13.AttachmentOffset = App.Placement(V(0, 0, 1.25 * 25.4), App.Rotation())
add_polygon(sketch13, [(343, 0), (343, -25), (362, -25), (362, 0)])  # lines 0-3
sketch13.addConstraint([
    Sketcher.Constraint("Vertical", 0),
    Sketcher.Constraint("Horizontal", 1),
    Sketcher.Constraint("Vertical", 2),
    Sketcher.Constraint("Horizontal", 3),
    Sketcher.Constraint("PointOnObject", 2, 2, -1),
    Sketcher.Constraint("DistanceY", 0, 2, 0, 1, Q("1 in")),
    Sketcher.Constraint("DistanceX", 1, 1, 1, 2, Q("0.75 in")),
    Sketcher.Constraint("DistanceX", -1, 1, 0, 2, Q("13.5 in")),
])
pocket12 = body.newObject("PartDesign::Pocket", "Pocket011")
pocket12.Profile = sketch13
pocket12.Type = "UpToFirst"

# Sketch on YZ plane
sketch14 = body.newObject("Sketcher::SketchObject", "Sketch013")
sketch14.AttachmentSupport = (doc.getObject("YZ_Plane"), [""])
sketch14.MapMode = "FlatFace"
sketch14.AttachmentOffset = App.Placement(V(0, 0, 27.75 * 25.4), App.Rotation())
add_polygon(sketch14, [(32, 32), (-32, 32), (-32, -32), (32, -32)])  # lines 0-3
sketch14.addConstraint([
    Sketcher.Constraint("Horizontal", 0),
    Sketcher.Constraint("Vertical", 1),
    Sketcher.Constraint("Horizontal", 2),
    Sketcher.Constraint("Vertical", 3),
    Sketcher.Constraint("Symmetric", 0, 2, 2, 2, -1, 1),
    Sketcher.Constraint("Equal", 2, 1),
    Sketcher.Constraint("DistanceX", 0, 2, 0, 1, Q("2.5 in")),
])
pocket13 = body.newObject("PartDesign::Pocket", "Pocket012")
pocket13.Profile = sketch14
pocket13.Length = Q("21.75 in")

# Sketch on XZ plane
sketch15 = body.newObject("Sketcher::SketchObject", "Sketch014")
sketch15.AttachmentSupport = (doc.getObject("XZ_Plane"), [""])
sketch15.MapMode = "FlatFace"
sketch15.AttachmentOffset = App.Placement(V(0, 0, -1.25 * 25.4), App.Rotation())
sketch15.addGeometry([
    Part.Circle(V(7.6, -19.1, 0), V(0, 0, 1), 2.2),
    Part.Circle(V(7.6, 12.7, 0), V(0, 0, 1), 2.2),
    Part.Circle(V(144.8, 12.7, 0), V(0, 0, 1), 2.2),
    Part.Circle(V(144.8, -19.1, 0), V(0, 0, 1), 2.2),
], False)
sketch15.addConstraint([
    Sketcher.Constraint("Equal", 0, 1),
    Sketcher.Constraint("Equal", 1, 2),
    Sketcher.Constraint("Equal", 2, 3),
    Sketcher.Constraint("Horizontal", 1, 3, 2, 3),
    Sketcher.Constraint("Horizontal", 0, 3, 3, 3),
    Sketcher.Constraint("Vertical", 0, 3, 1, 3),
    Sketcher.Constraint("Vertical", 2, 3, 3, 3),
    Sketcher.Constraint("Diameter", 0, Q("0.1695 in")),
    Sketcher.Constraint("DistanceX", -1, 1, 0, 3, Q("0.3 in")),
    Sketcher.Constraint("DistanceY", -1, 1, 1, 3, Q("0.5 in")),
    Sketcher.Constraint("DistanceX", -1, 1, 2, 3, Q("5.7 in")),
    Sketcher.Constraint("DistanceY", 0, 3, -1, 1, Q("0.75 in")),
])
doc.recompute()
hole = body.newObject("PartDesign::Hole", "Hole")
hole.Profile = sketch15
hole.ThreadType = "None"
hole.Diameter = Q("0.1695 in")
hole.DepthType = "ThroughAll"
hole.Reversed = True

# Sketch on XZ plane
sketch16 = body.newObject("Sketcher::SketchObject", "Sketch015")
sketch16.AttachmentSupport = (doc.getObject("XZ_Plane"), [""])
sketch16.MapMode = "FlatFace"
sketch16.AttachmentOffset = App.Placement(V(0, 0, 1.25 * 25.4), App.Rotation())
sketch16.addGeometry(Part.Circle(V(18.5, 12.9, 0), V(0, 0, 1), 2.2), False)
sketch16.addConstraint([
    Sketcher.Constraint("Diameter", 0, Q("0.1695 in")),
    Sketcher.Constraint("DistanceX", -1, 1, 0, 3, Q("0.7275 in")),
    Sketcher.Constraint("DistanceY", -1, 1, 0, 3, 12.85875),
])
pocket14 = body.newObject("PartDesign::Pocket", "Pocket013")
pocket14.Profile = sketch16
pocket14.Length = Q("0.25 in")

# Sketch on XZ plane
sketch17 = body.newObject("Sketcher::SketchObject", "Sketch016")
sketch17.AttachmentSupport = (doc.getObject("XZ_Plane"), [""])
sketch17.MapMode = "FlatFace"
sketch17.AttachmentOffset = App.Placement(V(0, 0, -1.125 * 25.4), App.Rotation())
sketch17.addGeometry(Part.Circle(V(18.5, 12.9, 0), V(0, 0, 1), 2.2), False)
sketch17.addConstraint([
    Sketcher.Constraint("Diameter", 0, Q("0.1695 in")),
    Sketcher.Constraint("DistanceX", -1, 1, 0, 3, Q("0.7275 in")),
    Sketcher.Constraint("DistanceY", -1, 1, 0, 3, 12.85875),
])
pocket15 = body.newObject("PartDesign::Pocket", "Pocket014")
pocket15.Profile = sketch17
pocket15.Length = Q("0.55 in")

doc.recompute()
